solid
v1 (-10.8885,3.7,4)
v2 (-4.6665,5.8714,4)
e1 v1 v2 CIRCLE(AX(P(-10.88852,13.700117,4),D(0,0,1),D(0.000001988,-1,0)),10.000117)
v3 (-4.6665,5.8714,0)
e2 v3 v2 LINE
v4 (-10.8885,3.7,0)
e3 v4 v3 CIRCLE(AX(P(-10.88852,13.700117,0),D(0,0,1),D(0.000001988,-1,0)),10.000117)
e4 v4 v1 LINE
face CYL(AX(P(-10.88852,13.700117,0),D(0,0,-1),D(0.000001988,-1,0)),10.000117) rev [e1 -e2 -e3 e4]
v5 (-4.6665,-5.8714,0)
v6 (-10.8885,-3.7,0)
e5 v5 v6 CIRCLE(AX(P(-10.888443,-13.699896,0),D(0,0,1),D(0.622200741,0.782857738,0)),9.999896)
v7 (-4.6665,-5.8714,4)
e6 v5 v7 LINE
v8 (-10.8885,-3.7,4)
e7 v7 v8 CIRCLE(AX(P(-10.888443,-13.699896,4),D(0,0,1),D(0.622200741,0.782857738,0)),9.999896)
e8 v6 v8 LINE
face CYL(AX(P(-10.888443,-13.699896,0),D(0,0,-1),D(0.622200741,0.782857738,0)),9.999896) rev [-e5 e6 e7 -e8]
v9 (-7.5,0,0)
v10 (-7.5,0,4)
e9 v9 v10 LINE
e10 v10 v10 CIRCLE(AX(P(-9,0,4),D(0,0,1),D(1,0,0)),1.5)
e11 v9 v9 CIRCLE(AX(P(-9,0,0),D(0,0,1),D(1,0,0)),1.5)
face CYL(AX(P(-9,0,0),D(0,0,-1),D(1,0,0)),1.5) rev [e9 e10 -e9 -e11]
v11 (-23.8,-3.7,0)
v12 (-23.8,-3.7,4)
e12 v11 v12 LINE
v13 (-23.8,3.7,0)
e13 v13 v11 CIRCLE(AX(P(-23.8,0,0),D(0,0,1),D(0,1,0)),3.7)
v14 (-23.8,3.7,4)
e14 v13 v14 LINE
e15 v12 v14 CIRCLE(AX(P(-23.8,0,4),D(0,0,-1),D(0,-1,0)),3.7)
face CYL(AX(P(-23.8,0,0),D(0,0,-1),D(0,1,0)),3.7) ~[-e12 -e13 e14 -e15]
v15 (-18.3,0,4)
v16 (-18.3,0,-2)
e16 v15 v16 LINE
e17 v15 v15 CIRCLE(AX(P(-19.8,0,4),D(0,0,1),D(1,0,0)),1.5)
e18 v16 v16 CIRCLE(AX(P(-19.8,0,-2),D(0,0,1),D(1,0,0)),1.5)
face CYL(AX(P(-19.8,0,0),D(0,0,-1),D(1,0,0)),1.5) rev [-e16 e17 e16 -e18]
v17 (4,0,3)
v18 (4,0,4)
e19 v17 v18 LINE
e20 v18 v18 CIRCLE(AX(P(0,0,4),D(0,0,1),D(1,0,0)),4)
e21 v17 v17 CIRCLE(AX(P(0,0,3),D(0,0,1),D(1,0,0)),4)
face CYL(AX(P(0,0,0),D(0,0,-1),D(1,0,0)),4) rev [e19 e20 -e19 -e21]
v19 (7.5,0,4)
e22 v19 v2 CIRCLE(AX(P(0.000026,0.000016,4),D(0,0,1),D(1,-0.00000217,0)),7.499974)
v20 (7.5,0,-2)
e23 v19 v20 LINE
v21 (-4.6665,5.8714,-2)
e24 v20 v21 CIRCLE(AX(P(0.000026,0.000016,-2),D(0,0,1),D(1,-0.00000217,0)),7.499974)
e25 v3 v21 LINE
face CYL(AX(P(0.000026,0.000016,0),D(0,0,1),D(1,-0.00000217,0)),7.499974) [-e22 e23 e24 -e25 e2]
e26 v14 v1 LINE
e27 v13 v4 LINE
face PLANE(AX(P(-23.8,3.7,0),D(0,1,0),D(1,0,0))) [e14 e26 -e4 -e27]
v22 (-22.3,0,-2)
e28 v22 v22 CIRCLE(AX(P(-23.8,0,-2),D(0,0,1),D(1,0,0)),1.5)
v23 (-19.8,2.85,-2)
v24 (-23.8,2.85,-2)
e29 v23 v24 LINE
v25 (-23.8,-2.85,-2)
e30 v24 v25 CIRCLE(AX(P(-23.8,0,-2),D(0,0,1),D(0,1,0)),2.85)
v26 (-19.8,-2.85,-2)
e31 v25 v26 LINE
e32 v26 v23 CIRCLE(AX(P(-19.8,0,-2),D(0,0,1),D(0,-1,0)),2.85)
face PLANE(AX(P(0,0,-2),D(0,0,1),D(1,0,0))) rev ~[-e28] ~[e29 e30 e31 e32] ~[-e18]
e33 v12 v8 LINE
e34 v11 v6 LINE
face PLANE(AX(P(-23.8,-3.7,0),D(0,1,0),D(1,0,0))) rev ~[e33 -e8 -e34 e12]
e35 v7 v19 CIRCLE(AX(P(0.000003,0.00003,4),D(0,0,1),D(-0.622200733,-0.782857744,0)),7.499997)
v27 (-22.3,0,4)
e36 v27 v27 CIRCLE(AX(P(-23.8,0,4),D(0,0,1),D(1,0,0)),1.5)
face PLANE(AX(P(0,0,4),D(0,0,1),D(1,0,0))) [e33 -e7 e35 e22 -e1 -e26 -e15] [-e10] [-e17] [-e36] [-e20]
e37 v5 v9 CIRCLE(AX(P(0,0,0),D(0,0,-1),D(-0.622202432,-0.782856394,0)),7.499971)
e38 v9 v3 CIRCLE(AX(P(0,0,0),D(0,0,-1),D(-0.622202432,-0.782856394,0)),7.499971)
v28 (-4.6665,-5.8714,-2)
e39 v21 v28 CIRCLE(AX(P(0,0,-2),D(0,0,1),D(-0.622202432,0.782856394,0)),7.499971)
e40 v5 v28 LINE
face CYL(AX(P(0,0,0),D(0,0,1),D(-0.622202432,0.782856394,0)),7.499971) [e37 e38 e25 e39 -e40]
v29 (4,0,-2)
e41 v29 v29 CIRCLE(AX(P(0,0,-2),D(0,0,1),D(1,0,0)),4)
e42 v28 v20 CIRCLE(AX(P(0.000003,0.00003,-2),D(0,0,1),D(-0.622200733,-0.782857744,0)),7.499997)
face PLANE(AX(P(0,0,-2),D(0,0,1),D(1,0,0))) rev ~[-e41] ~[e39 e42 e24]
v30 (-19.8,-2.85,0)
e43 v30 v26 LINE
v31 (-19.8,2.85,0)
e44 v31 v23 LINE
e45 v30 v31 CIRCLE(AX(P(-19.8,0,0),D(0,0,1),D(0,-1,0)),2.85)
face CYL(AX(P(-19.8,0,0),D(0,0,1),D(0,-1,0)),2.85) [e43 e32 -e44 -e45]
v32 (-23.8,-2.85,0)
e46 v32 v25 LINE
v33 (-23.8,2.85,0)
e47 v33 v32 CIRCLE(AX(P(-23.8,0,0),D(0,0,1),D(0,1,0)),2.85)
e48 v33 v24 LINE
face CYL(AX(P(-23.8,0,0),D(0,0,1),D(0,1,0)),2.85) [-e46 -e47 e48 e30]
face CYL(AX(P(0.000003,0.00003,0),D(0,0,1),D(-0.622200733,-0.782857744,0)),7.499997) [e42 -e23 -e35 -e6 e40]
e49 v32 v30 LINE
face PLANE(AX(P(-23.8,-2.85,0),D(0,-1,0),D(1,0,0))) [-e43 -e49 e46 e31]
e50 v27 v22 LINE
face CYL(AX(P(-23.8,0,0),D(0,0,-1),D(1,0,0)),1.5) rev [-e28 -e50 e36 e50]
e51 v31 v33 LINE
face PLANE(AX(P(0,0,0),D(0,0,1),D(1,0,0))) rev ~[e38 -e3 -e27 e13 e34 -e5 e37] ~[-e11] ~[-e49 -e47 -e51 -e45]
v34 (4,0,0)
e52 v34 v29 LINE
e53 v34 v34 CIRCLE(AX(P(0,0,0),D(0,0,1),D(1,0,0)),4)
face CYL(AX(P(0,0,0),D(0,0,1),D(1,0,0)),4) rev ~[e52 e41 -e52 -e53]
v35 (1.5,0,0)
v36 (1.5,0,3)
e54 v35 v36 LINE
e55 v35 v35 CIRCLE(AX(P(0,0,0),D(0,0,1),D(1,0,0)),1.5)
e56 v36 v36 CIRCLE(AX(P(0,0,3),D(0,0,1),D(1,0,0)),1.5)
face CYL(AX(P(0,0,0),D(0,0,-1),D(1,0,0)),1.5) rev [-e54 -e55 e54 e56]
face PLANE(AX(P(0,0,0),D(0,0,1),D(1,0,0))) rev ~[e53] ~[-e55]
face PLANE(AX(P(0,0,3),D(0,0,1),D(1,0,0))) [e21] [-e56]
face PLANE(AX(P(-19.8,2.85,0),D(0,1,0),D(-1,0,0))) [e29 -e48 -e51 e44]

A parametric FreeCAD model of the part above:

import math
import FreeCAD as App
import Part
import Sketcher
from FreeCAD import Vector

doc = App.newDocument("Part")
body = doc.addObject("PartDesign::Body", "Body")

# Sketch on XY plane
sketch1 = body.newObject("Sketcher::SketchObject", "Sketch")
sketch1.AttachmentSupport = (doc.getObject("XY_Plane"), [""])
sketch1.MapMode = "FlatFace"
sketch1.addGeometry(Part.LineSegment(Vector(-10.9, 3.7, 0), Vector(-23.8, 3.7, 0)), False)
sketch1.addGeometry(Part.ArcOfCircle(Part.Circle(Vector(-23.8, 0, 0), Vector(0, 0, 1), 3.7), math.radians(90), math.radians(270)), False)
sketch1.addGeometry(Part.LineSegment(Vector(-23.8, -3.7, 0), Vector(-10.9, -3.7, 0)), False)
sketch1.addGeometry(Part.ArcOfCircle(Part.Circle(Vector(-10.9, -13.7, 0), Vector(0, 0, 1), 10), math.radians(52), math.radians(90)), False)
sketch1.addGeometry(Part.ArcOfCircle(Part.Circle(Vector(0, 0, 0), Vector(0, 0, 1), 7.5), math.radians(-128), math.radians(0)), False)
sketch1.addGeometry(Part.ArcOfCircle(Part.Circle(Vector(0, 0, 0), Vector(0, 0, 1), 7.5), math.radians(0), math.radians(128)), False)
sketch1.addGeometry(Part.ArcOfCircle(Part.Circle(Vector(-10.9, 13.7, 0), Vector(0, 0, 1), 10), math.radians(-90), math.radians(-52)), False)
sketch1.addGeometry(Part.Circle(Vector(-9, 0, 0), Vector(0, 0, 1), 1.5), False)
sketch1.addGeometry(Part.Circle(Vector(0, 0, 0), Vector(0, 0, 1), 4), False)
sketch1.addGeometry(Part.Circle(Vector(-23.8, 0, 0), Vector(0, 0, 1), 1.5), False)
sketch1.addGeometry(Part.Circle(Vector(-19.8, 0, 0), Vector(0, 0, 1), 1.5), False)
sketch1.addConstraint(Sketcher.Constraint("Tangent", 0, 2, 1, 1))
sketch1.addConstraint(Sketcher.Constraint("Tangent", 1, 2, 2, 1))
sketch1.addConstraint(Sketcher.Constraint("Tangent", 2, 2, 3, 2))
sketch1.addConstraint(Sketcher.Constraint("Tangent", 3, 1, 4, 1))
sketch1.addConstraint(Sketcher.Constraint("Tangent", 4, 2, 5, 1))
sketch1.addConstraint(Sketcher.Constraint("Tangent", 5, 2, 6, 2))
sketch1.addConstraint(Sketcher.Constraint("Tangent", 6, 1, 0, 1))
sketch1.addConstraint(Sketcher.Constraint("Horizontal", 0))
sketch1.addConstraint(Sketcher.Constraint("Horizontal", 2))
sketch1.addConstraint(Sketcher.Constraint("Coincident", 4, 3, -1, 1))
sketch1.addConstraint(Sketcher.Constraint("Coincident", 8, 3, -1, 1))
sketch1.addConstraint(Sketcher.Constraint("Coincident", 9, 3, 1, 3))
sketch1.addConstraint(Sketcher.Constraint("Equal", 4, 5))
sketch1.addConstraint(Sketcher.Constraint("Equal", 3, 6))
sketch1.addConstraint(Sketcher.Constraint("Equal", 7, 9))
sketch1.addConstraint(Sketcher.Constraint("Equal", 9, 10))
sketch1.addConstraint(Sketcher.Constraint("PointOnObject", 1, 3, -1))
sketch1.addConstraint(Sketcher.Constraint("PointOnObject", 7, 3, -1))
sketch1.addConstraint(Sketcher.Constraint("PointOnObject", 10, 3, -1))
sketch1.addConstraint(Sketcher.Constraint("PointOnObject", 4, 2, -1))
sketch1.addConstraint(Sketcher.Constraint("Diameter", 7, 3.0))
sketch1.addConstraint(Sketcher.Constraint("Diameter", 8, 8.0))
sketch1.addConstraint(Sketcher.Constraint("Radius", 3, 10.0))
sketch1.addConstraint(Sketcher.Constraint("Radius", 1, 3.7))
sketch1.addConstraint(Sketcher.Constraint("Radius", 4, 7.5))
sketch1.addConstraint(Sketcher.Constraint("DistanceX", 7, 3, -1, 1, 9.0))
sketch1.addConstraint(Sketcher.Constraint("DistanceX", 1, 3, 10, 3, 4.0))
sketch1.addConstraint(Sketcher.Constraint("DistanceX", 1, 3, -1, 1, 23.8))
pad1 = body.newObject("PartDesign::Pad", "Pad")
pad1.Profile = sketch1
pad1.Length = 4

# Sketch on XY plane
sketch2 = body.newObject("Sketcher::SketchObject", "Sketch001")
sketch2.AttachmentSupport = (doc.getObject("XY_Plane"), [""])
sketch2.MapMode = "FlatFace"
sketch2.addGeometry(Part.Circle(Vector(0, 0, 0), Vector(0, 0, 1), 4), False)
sketch2.addGeometry(Part.Circle(Vector(0, 0, 0), Vector(0, 0, 1), 1.5), False)
sketch2.addConstraint(Sketcher.Constraint("Coincident", 0, 3, -1, 1))
sketch2.addConstraint(Sketcher.Constraint("Coincident", 1, 3, -1, 1))
sketch2.addConstraint(Sketcher.Constraint("Diameter", 0, 8.0))
sketch2.addConstraint(Sketcher.Constraint("Diameter", 1, 3.0))
pad2 = body.newObject("PartDesign::Pad", "Pad001")
pad2.Profile = sketch2
pad2.Length = 3

# Sketch on XY plane
sketch3 = body.newObject("Sketcher::SketchObject", "Sketch002")
sketch3.AttachmentSupport = (doc.getObject("XY_Plane"), [""])
sketch3.MapMode = "FlatFace"
sketch3.addGeometry(Part.ArcOfCircle(Part.Circle(Vector(0, 0, 0), Vector(0, 0, 1), 7.5), math.radians(0), math.radians(128)), False)
sketch3.addGeometry(Part.ArcOfCircle(Part.Circle(Vector(0, 0, 0), Vector(0, 0, 1), 7.5), math.radians(128), math.radians(232)), False)
sketch3.addGeometry(Part.ArcOfCircle(Part.Circle(Vector(0, 0, 0), Vector(0, 0, 1), 7.5), math.radians(-128), math.radians(0)), False)
sketch3.addGeometry(Part.Circle(Vector(0, 0, 0), Vector(0, 0, 1), 4), False)
sketch3.addGeometry(Part.ArcOfCircle(Part.Circle(Vector(-23.8, 0, 0), Vector(0, 0, 1), 2.9), math.radians(90), math.radians(270)), False)
sketch3.addGeometry(Part.LineSegment(Vector(-23.8, -2.9, 0), Vector(-19.8, -2.9, 0)), False)
sketch3.addGeometry(Part.ArcOfCircle(Part.Circle(Vector(-19.8, 0, 0), Vector(0, 0, 1), 2.9), math.radians(-90), math.radians(90)), False)
sketch3.addGeometry(Part.LineSegment(Vector(-19.8, 2.9, 0), Vector(-23.8, 2.9, 0)), False)
sketch3.addGeometry(Part.Circle(Vector(-23.8, 0, 0), Vector(0, 0, 1), 1.5), False)
sketch3.addGeometry(Part.Circle(Vector(-19.8, 0, 0), Vector(0, 0, 1), 1.5), False)
sketch3.addConstraint(Sketcher.Constraint("Tangent", 0, 2, 1, 1))
sketch3.addConstraint(Sketcher.Constraint("Tangent", 1, 2, 2, 1))
sketch3.addConstraint(Sketcher.Constraint("Tangent", 2, 2, 0, 1))
sketch3.addConstraint(Sketcher.Constraint("Tangent", 4, 2, 5, 1))
sketch3.addConstraint(Sketcher.Constraint("Tangent", 5, 2, 6, 1))
sketch3.addConstraint(Sketcher.Constraint("Tangent", 6, 2, 7, 1))
sketch3.addConstraint(Sketcher.Constraint("Tangent", 7, 2, 4, 1))
sketch3.addConstraint(Sketcher.Constraint("Horizontal", 5))
sketch3.addConstraint(Sketcher.Constraint("Horizontal", 7))
sketch3.addConstraint(Sketcher.Constraint("Coincident", 0, 3, -1, 1))
sketch3.addConstraint(Sketcher.Constraint("Coincident", 3, 3, -1, 1))
sketch3.addConstraint(Sketcher.Constraint("Coincident", 8, 3, 4, 3))
sketch3.addConstraint(Sketcher.Constraint("Coincident", 9, 3, 6, 3))
sketch3.addConstraint(Sketcher.Constraint("Equal", 8, 9))
sketch3.addConstraint(Sketcher.Constraint("PointOnObject", 4, 3, -1))
sketch3.addConstraint(Sketcher.Constraint("PointOnObject", 2, 2, -1))
sketch3.addConstraint(Sketcher.Constraint("Vertical", 0, 2, 1, 2))
sketch3.addConstraint(Sketcher.Constraint("Diameter", 3, 8.0))
sketch3.addConstraint(Sketcher.Constraint("Diameter", 8, 3.0))
sketch3.addConstraint(Sketcher.Constraint("Radius", 0, 7.5))
sketch3.addConstraint(Sketcher.Constraint("DistanceX", 5, 1, 5, 2, 4.0))
sketch3.addConstraint(Sketcher.Constraint("Radius", 4, 2.85))
sketch3.addConstraint(Sketcher.Constraint("DistanceX", 4, 3, -1, 1, 23.8))
sketch3.addConstraint(Sketcher.Constraint("DistanceX", 0, 2, -1, 1, 4.6665))
pad3 = body.newObject("PartDesign::Pad", "Pad002")
pad3.Profile = sketch3
pad3.Length = 2
pad3.Reversed = True

doc.recompute()
